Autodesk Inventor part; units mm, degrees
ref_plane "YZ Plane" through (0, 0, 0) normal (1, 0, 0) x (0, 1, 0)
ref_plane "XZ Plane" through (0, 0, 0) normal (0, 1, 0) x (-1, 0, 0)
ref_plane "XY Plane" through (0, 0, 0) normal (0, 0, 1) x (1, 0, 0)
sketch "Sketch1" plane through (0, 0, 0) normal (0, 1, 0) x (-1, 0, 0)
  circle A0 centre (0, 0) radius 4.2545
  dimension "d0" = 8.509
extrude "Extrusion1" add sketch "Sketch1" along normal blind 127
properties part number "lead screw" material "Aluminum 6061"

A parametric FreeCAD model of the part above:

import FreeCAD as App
import Part
import Sketcher
from FreeCAD import Vector
Q = App.Units.Quantity

doc = App.newDocument("Part")
body = doc.addObject("PartDesign::Body", "Body")

# Sketch on XZ plane
sketch1 = doc.addObject("Sketcher::SketchObject", "Sketch")
body.addObject(sketch1)
sketch1.AttachmentSupport = (doc.XZ_Plane, [""])
sketch1.MapMode = "FlatFace"
sketch1.addGeometry(Part.Circle(Vector(0, 0, 0), Vector(0, 0, 1), 4.3), False)
sketch1.addConstraint([
    Sketcher.Constraint("Coincident", 0, 3, -1, 1),
    Sketcher.Constraint("Diameter", 0, Q("0.335 in")),
])
pad1 = doc.addObject("PartDesign::Pad", "Pad")
body.addObject(pad1)
pad1.Profile = sketch1
pad1.Length = Q("5 in")
pad1.Reversed = True

doc.recompute()
